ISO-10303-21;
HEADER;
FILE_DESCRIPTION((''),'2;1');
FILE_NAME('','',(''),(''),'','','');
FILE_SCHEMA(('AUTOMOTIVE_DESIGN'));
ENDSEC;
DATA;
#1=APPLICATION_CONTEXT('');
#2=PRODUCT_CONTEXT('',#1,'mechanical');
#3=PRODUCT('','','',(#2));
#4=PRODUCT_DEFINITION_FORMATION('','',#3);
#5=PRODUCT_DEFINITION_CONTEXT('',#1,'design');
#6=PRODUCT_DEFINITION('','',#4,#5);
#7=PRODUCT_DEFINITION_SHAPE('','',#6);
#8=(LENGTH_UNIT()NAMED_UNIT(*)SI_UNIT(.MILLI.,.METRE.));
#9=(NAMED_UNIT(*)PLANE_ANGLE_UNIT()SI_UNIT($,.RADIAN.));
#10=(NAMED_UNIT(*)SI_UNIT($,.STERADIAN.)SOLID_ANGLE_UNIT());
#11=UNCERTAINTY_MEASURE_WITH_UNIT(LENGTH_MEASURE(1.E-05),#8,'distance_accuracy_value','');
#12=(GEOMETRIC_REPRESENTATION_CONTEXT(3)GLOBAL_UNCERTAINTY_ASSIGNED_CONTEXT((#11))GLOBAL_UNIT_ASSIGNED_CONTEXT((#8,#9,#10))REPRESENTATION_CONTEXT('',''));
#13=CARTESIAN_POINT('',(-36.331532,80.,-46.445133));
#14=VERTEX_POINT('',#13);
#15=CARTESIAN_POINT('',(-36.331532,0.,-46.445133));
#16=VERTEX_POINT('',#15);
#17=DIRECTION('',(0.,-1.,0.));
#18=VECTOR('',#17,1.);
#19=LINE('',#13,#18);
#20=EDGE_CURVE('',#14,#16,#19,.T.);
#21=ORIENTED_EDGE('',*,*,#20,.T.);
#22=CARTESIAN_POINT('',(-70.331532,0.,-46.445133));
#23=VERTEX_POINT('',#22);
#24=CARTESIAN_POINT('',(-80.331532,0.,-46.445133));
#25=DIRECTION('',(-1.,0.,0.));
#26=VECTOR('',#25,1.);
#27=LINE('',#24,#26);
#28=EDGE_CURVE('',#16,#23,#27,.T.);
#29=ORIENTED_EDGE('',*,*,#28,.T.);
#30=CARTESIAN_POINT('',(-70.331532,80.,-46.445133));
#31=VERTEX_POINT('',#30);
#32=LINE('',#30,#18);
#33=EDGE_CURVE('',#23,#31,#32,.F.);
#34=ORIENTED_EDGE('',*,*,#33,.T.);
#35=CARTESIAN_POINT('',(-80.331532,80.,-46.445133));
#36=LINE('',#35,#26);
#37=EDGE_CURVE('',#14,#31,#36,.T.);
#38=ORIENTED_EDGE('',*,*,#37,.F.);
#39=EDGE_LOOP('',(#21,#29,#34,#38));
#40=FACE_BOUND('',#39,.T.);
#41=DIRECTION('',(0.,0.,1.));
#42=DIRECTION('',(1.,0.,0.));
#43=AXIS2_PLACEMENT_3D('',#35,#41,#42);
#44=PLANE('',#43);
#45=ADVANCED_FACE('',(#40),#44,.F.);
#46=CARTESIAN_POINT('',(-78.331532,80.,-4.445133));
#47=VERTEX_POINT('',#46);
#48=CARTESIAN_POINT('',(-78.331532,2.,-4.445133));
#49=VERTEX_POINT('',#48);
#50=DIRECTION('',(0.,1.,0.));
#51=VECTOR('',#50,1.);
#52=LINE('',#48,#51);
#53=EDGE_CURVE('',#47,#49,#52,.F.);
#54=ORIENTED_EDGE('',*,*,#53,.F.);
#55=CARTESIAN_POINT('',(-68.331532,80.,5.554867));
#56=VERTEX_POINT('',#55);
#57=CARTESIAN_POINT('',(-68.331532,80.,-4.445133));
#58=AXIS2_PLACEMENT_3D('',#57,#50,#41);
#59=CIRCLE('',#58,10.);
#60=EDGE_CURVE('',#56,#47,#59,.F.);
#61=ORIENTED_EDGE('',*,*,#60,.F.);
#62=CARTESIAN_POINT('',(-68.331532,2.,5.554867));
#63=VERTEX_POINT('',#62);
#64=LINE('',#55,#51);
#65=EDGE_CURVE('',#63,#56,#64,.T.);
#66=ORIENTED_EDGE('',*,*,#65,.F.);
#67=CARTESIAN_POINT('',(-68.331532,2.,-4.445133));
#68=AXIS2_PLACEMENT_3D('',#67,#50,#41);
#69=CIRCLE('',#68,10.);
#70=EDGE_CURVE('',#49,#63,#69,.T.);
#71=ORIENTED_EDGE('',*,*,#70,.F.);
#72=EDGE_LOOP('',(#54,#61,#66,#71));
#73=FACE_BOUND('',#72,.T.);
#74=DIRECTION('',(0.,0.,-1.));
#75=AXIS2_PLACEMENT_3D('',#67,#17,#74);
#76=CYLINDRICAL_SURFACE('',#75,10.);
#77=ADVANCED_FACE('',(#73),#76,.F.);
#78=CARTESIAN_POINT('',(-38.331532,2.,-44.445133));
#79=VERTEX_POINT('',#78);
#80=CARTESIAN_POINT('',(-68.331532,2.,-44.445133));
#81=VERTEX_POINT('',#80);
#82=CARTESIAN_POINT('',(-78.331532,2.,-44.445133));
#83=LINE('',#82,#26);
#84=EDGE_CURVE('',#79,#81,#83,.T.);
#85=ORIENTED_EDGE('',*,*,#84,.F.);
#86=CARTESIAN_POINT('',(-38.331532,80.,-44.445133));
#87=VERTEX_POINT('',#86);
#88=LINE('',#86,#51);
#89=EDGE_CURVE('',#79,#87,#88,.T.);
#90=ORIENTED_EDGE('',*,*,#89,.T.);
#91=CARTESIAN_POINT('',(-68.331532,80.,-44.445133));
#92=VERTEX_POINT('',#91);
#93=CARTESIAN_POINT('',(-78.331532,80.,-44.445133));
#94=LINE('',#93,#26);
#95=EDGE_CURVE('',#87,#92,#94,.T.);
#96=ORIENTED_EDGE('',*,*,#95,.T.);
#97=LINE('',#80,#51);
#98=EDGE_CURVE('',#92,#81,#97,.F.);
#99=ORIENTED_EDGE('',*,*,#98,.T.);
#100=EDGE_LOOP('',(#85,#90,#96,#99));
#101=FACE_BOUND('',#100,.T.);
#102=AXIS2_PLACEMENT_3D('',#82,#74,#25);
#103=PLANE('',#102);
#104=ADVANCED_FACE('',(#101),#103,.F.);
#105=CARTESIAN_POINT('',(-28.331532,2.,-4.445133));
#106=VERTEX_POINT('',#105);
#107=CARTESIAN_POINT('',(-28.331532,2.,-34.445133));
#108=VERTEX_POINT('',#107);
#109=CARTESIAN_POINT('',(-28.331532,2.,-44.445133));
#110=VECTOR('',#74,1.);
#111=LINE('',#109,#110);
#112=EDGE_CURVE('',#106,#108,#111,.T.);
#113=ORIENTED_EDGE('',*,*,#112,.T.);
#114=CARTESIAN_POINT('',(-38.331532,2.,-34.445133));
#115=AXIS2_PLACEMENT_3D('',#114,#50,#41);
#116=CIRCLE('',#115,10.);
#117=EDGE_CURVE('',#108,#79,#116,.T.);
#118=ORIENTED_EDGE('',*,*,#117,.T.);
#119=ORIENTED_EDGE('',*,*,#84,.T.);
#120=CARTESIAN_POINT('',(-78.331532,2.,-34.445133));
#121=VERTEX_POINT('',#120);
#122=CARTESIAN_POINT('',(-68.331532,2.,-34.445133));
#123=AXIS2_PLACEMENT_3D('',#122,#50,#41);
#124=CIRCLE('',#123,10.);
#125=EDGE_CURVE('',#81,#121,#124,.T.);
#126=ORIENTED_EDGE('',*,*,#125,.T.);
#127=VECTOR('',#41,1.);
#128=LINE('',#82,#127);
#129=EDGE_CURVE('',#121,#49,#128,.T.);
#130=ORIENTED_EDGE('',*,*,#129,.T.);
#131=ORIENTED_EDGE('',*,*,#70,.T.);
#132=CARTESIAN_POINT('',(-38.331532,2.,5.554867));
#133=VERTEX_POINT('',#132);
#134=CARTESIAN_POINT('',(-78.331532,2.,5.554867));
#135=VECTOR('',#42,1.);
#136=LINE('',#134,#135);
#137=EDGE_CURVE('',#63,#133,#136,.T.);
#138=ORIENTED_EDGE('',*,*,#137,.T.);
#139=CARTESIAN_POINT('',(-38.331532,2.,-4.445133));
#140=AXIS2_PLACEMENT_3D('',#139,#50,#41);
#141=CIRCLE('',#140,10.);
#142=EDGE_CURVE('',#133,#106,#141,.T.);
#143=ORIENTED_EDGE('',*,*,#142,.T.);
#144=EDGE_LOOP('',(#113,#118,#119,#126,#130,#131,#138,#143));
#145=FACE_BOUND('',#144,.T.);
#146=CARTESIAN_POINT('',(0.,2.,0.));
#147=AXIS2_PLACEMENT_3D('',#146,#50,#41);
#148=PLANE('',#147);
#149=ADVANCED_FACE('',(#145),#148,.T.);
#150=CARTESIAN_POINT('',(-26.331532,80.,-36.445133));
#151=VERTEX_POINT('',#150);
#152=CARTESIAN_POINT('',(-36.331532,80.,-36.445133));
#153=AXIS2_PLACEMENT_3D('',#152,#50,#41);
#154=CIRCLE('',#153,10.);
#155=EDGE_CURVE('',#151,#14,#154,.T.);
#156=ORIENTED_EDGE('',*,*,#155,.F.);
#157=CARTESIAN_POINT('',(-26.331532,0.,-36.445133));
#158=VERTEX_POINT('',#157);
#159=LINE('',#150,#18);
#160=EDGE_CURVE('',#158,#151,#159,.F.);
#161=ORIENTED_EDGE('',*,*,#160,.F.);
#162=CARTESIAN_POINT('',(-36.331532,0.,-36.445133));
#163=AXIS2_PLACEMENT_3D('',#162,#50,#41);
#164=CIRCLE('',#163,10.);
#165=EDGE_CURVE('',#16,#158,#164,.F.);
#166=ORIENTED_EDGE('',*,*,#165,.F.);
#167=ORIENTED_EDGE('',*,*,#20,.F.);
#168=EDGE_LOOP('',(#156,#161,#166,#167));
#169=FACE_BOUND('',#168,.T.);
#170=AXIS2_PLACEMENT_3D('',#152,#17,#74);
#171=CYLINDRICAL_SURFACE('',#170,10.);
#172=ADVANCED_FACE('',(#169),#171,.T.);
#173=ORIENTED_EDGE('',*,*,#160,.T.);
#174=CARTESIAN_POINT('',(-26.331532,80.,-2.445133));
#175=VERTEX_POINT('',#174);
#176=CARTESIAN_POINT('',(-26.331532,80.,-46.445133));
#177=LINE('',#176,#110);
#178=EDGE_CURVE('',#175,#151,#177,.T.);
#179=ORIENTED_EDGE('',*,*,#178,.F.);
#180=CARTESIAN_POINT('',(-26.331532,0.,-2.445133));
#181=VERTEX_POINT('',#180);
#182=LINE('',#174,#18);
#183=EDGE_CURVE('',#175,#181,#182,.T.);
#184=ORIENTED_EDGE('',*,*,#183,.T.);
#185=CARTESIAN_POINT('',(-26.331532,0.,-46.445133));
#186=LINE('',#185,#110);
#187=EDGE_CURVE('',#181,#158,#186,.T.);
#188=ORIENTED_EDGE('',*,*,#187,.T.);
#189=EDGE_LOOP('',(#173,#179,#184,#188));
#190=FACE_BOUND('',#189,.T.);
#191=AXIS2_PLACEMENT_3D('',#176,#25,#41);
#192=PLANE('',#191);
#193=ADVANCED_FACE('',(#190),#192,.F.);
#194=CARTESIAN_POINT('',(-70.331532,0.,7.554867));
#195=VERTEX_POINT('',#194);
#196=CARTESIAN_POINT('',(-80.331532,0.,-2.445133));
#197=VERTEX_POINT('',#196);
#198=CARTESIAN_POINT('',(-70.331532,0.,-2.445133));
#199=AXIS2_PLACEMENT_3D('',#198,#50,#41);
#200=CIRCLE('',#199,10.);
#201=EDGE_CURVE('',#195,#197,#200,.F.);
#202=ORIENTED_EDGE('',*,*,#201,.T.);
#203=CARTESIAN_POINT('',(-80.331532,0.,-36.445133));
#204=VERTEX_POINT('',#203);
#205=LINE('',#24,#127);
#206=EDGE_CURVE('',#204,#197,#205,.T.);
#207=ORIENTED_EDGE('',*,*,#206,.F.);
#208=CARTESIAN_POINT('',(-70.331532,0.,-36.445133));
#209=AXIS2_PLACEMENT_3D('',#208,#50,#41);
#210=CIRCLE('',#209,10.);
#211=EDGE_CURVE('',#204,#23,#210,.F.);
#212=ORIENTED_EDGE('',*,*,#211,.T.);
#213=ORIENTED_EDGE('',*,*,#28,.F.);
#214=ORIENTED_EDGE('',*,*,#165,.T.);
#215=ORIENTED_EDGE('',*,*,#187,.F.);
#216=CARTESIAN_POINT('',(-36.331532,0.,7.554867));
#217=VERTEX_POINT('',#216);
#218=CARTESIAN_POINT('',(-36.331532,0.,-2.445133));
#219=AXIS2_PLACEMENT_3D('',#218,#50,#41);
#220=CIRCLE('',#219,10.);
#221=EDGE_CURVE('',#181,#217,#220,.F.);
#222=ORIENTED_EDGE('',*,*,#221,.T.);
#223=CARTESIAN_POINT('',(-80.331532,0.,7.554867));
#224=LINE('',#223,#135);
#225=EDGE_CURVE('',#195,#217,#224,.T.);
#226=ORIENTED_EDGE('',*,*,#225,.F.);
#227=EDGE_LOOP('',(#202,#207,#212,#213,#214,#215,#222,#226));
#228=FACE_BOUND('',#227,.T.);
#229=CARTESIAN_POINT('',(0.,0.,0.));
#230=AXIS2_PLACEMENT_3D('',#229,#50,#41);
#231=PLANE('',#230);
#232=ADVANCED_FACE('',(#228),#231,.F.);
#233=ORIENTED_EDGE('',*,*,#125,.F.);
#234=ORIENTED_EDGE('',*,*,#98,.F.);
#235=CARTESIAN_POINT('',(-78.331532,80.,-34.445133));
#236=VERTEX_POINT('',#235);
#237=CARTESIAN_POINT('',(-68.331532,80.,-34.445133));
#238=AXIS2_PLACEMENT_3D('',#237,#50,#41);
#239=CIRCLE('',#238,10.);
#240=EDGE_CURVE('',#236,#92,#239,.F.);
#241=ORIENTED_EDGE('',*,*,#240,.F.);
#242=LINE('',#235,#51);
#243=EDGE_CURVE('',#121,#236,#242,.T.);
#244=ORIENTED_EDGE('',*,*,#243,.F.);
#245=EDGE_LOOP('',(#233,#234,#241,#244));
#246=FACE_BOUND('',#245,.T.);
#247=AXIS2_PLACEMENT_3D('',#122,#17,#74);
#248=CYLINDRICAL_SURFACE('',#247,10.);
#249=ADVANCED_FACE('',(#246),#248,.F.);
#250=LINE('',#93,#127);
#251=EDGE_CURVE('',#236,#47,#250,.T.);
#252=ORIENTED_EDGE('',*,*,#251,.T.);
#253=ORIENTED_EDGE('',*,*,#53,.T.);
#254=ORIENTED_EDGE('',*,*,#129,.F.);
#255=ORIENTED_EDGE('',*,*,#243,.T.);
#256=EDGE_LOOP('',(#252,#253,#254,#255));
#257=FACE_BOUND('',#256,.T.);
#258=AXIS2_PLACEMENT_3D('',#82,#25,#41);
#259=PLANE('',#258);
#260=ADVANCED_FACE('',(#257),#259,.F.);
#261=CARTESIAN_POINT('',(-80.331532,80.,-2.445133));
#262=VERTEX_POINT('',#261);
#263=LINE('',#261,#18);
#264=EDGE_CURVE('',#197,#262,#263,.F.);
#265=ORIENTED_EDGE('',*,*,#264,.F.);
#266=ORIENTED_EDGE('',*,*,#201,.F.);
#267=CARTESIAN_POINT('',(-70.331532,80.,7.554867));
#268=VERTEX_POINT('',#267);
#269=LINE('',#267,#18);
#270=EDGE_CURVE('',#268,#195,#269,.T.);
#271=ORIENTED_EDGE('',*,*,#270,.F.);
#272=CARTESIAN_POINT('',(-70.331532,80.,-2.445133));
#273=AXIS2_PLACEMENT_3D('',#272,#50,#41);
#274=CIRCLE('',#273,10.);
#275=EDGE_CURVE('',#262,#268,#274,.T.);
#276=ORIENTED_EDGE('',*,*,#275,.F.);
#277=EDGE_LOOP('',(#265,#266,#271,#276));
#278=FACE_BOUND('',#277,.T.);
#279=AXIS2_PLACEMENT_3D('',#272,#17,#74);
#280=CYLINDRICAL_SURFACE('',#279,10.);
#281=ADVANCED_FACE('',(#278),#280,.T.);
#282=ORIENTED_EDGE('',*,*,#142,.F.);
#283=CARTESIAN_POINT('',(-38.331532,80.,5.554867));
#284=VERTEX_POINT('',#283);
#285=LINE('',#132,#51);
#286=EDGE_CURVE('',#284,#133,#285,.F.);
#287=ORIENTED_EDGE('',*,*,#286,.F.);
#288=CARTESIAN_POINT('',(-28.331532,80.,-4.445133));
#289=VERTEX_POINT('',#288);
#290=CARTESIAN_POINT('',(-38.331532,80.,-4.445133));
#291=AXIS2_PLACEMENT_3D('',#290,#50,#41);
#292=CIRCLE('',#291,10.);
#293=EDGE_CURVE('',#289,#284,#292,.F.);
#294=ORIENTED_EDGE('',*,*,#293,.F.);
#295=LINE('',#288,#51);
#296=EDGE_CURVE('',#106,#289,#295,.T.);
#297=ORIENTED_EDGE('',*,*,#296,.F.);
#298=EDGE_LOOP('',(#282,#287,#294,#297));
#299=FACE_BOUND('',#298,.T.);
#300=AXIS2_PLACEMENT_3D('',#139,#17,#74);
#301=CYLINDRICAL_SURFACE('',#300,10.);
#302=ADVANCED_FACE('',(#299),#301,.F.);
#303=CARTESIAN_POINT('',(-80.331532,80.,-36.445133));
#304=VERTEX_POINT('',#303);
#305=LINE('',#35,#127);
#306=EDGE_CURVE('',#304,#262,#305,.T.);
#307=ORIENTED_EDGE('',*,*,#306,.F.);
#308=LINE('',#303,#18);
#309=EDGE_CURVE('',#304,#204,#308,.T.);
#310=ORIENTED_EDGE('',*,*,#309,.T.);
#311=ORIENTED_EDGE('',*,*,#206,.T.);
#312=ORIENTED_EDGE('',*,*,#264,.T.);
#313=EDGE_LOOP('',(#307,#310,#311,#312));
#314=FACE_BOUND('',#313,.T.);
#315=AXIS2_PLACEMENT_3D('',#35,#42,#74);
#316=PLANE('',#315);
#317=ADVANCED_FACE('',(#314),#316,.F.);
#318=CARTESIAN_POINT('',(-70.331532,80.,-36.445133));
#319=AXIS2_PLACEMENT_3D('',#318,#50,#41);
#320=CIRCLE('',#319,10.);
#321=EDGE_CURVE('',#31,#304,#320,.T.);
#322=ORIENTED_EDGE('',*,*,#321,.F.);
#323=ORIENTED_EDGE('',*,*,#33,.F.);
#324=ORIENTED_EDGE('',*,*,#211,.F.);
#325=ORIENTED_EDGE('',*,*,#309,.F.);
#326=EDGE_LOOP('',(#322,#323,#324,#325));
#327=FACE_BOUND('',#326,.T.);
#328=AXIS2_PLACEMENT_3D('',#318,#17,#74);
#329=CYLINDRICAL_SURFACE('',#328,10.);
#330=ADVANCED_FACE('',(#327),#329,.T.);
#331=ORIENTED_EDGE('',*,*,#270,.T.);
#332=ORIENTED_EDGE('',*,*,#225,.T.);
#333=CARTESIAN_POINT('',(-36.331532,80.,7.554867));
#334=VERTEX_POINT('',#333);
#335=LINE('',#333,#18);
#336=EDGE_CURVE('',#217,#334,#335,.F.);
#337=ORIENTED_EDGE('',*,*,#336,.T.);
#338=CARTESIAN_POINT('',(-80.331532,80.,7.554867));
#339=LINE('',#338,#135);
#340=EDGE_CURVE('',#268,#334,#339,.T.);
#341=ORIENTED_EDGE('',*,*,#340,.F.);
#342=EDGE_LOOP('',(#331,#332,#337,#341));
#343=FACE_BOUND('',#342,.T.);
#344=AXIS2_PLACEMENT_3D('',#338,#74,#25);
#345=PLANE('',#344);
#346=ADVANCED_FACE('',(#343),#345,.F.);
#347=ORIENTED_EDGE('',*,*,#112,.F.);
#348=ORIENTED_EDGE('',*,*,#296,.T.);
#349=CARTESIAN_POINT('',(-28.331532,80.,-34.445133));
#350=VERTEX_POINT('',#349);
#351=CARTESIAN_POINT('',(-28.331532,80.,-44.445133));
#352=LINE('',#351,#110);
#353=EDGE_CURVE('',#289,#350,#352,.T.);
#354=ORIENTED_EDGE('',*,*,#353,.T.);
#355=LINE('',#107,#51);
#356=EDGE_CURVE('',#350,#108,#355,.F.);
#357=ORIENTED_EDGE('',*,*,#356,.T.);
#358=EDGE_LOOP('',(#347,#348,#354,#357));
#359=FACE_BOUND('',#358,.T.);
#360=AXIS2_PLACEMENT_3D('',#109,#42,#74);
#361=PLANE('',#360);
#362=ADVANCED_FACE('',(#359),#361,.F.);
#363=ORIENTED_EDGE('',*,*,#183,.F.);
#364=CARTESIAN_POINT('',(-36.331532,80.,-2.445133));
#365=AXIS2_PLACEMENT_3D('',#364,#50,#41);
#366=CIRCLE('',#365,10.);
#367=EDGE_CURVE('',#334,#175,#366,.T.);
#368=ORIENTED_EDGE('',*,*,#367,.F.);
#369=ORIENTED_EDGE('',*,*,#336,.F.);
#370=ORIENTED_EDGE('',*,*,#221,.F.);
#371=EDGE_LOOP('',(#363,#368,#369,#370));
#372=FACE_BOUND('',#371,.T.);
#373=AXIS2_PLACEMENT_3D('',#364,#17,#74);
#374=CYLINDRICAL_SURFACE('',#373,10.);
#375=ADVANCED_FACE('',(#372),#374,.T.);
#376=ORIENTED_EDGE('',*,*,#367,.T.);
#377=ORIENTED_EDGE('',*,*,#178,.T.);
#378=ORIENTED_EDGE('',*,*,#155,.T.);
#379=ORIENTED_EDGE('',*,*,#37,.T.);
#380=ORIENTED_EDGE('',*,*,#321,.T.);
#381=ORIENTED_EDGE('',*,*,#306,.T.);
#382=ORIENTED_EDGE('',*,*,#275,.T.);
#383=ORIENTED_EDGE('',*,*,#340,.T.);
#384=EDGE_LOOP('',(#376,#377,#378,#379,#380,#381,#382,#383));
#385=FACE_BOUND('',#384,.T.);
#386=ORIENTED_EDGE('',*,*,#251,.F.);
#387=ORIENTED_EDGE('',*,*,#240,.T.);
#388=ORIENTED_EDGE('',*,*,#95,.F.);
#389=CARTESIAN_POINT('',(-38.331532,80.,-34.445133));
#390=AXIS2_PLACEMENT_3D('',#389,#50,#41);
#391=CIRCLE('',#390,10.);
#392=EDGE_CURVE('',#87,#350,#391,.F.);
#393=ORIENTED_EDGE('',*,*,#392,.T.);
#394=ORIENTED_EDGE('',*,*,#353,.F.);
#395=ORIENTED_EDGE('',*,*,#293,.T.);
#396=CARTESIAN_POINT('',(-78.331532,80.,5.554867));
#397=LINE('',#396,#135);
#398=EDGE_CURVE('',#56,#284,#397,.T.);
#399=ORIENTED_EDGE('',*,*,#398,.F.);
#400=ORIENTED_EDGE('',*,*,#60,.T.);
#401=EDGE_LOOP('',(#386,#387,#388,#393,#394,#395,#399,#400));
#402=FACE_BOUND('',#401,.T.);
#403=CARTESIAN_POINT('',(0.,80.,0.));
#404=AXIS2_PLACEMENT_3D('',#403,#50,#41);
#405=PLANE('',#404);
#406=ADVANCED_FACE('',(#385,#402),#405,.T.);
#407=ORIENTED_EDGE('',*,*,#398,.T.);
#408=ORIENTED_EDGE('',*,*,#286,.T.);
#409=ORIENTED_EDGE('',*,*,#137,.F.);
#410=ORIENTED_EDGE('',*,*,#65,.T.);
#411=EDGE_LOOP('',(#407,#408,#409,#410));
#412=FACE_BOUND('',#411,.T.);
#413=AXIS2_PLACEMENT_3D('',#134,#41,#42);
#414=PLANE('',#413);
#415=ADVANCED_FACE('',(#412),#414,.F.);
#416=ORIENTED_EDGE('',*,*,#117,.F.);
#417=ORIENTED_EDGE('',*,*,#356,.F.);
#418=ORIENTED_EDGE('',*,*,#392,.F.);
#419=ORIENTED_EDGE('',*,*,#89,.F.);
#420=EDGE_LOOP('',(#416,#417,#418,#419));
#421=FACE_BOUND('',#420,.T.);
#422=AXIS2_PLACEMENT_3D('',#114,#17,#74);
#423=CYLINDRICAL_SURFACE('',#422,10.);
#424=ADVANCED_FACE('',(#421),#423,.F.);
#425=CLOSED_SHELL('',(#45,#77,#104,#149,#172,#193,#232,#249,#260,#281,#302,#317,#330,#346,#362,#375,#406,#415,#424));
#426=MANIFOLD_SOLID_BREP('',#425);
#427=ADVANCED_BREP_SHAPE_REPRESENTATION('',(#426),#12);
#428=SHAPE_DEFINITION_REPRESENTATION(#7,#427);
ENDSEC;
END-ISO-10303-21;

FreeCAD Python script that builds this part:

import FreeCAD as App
import Part
import Sketcher

V = App.Vector
Q = App.Units.Quantity


def edges_at(feature, points):
    """Names of the edges that pass closest to the given points."""
    edges = feature.Shape.Edges
    near = lambda p: min(range(len(edges)), key=lambda i: edges[i].distToShape(Part.Vertex(*p))[0])
    return sorted({f"Edge{near(p) + 1}" for p in points})


def add_polygon(sketch, points):
    """Adds a closed chain of lines whose ends are joined by coincident constraints."""
    first, n = sketch.GeometryCount, len(points)
    for a, b in zip(points, points[1:] + points[:1]):
        sketch.addGeometry(Part.LineSegment(App.Vector(*a, 0), App.Vector(*b, 0)), False)
    for i in range(n):
        sketch.addConstraint(Sketcher.Constraint("Coincident", first + i, 2, first + (i + 1) % n, 1))

doc = App.newDocument("Part")
params = doc.addObject("Spreadsheet::Sheet", "Params")
for row, (alias, value) in enumerate([
    ("sketch1_width", "54 mm"),
    ("pad1_length", "80 mm"),
    ("sketch2_width", "50 mm"),
    ("pocket1_length", "78 mm"),
    ("fillet_radius", "10 mm"),
    ("fillet2_radius", "10 mm"),
], start=1):
    params.set(f"A{row}", alias)
    params.set(f"B{row}", "=" + value)
    params.setAlias(f"B{row}", alias)

body = doc.addObject("PartDesign::Body", "Body")

# Sketch on XZ plane
sketch1 = body.newObject("Sketcher::SketchObject", "Sketch")
sketch1.AttachmentSupport = (doc.getObject("XZ_Plane"), [""])
sketch1.MapMode = "FlatFace"
add_polygon(sketch1, [(-80, -46), (-80, 8), (-26, 8), (-26, -46)])  # lines 0-3
sketch1.addConstraint([
    Sketcher.Constraint("Vertical", 0),
    Sketcher.Constraint("Horizontal", 1),
    Sketcher.Constraint("Vertical", 2),
    Sketcher.Constraint("Horizontal", 3),
    Sketcher.Constraint("Equal", 3, 0),
    Sketcher.Constraint("DistanceX", 1, 1, 1, 2, Q("54 mm")),
    Sketcher.Constraint("DistanceX", 0, 2, -1, 1, Q("80.331532 mm")),
    Sketcher.Constraint("DistanceY", -1, 1, 0, 2, Q("7.554867 mm")),
])
sketch1.setExpression("Constraints[9]", "Params.sketch1_width")
pad1 = body.newObject("PartDesign::Pad", "Pad")
pad1.Profile = sketch1
pad1.setExpression("Length", "Params.pad1_length")
pad1.Reversed = True

# Sketch on XZ plane
sketch2 = body.newObject("Sketcher::SketchObject", "Sketch001")
sketch2.AttachmentSupport = (doc.getObject("XZ_Plane"), [""])
sketch2.MapMode = "FlatFace"
sketch2.AttachmentOffset = App.Placement(V(0, 0, -80), App.Rotation())
add_polygon(sketch2, [(-78, -44), (-78, 6), (-28, 6), (-28, -44)])  # lines 0-3
sketch2.addConstraint([
    Sketcher.Constraint("Vertical", 0),
    Sketcher.Constraint("Horizontal", 1),
    Sketcher.Constraint("Vertical", 2),
    Sketcher.Constraint("Horizontal", 3),
    Sketcher.Constraint("Equal", 3, 0),
    Sketcher.Constraint("DistanceX", 1, 1, 1, 2, Q("50 mm")),
    Sketcher.Constraint("DistanceX", 0, 2, -1, 1, Q("78.331532 mm")),
    Sketcher.Constraint("DistanceY", -1, 1, 0, 2, Q("5.554867 mm")),
])
sketch2.setExpression("Constraints[9]", "Params.sketch2_width")
pocket1 = body.newObject("PartDesign::Pocket", "Pocket")
pocket1.Profile = sketch2
pocket1.setExpression("Length", "Params.pocket1_length")
pocket1.Reversed = True
doc.recompute()

fillet = body.newObject("PartDesign::Fillet", "Fillet")
fillet.Base = (pocket1, edges_at(pocket1, [
    (-78.332, 41, 5.555),
    (-78.332, 41, -44.445),
    (-28.332, 41, -44.445),
    (-28.332, 41, 5.555),
]))
fillet.setExpression("Radius", "Params.fillet_radius")
doc.recompute()

fillet2 = body.newObject("PartDesign::Fillet", "Fillet001")
fillet2.Base = (fillet, edges_at(fillet, [
    (-80.332, 40, -46.445),
    (-26.332, 40, -46.445),
    (-26.332, 40, 7.555),
    (-80.332, 40, 7.555),
]))
fillet2.setExpression("Radius", "Params.fillet2_radius")

doc.recompute()
